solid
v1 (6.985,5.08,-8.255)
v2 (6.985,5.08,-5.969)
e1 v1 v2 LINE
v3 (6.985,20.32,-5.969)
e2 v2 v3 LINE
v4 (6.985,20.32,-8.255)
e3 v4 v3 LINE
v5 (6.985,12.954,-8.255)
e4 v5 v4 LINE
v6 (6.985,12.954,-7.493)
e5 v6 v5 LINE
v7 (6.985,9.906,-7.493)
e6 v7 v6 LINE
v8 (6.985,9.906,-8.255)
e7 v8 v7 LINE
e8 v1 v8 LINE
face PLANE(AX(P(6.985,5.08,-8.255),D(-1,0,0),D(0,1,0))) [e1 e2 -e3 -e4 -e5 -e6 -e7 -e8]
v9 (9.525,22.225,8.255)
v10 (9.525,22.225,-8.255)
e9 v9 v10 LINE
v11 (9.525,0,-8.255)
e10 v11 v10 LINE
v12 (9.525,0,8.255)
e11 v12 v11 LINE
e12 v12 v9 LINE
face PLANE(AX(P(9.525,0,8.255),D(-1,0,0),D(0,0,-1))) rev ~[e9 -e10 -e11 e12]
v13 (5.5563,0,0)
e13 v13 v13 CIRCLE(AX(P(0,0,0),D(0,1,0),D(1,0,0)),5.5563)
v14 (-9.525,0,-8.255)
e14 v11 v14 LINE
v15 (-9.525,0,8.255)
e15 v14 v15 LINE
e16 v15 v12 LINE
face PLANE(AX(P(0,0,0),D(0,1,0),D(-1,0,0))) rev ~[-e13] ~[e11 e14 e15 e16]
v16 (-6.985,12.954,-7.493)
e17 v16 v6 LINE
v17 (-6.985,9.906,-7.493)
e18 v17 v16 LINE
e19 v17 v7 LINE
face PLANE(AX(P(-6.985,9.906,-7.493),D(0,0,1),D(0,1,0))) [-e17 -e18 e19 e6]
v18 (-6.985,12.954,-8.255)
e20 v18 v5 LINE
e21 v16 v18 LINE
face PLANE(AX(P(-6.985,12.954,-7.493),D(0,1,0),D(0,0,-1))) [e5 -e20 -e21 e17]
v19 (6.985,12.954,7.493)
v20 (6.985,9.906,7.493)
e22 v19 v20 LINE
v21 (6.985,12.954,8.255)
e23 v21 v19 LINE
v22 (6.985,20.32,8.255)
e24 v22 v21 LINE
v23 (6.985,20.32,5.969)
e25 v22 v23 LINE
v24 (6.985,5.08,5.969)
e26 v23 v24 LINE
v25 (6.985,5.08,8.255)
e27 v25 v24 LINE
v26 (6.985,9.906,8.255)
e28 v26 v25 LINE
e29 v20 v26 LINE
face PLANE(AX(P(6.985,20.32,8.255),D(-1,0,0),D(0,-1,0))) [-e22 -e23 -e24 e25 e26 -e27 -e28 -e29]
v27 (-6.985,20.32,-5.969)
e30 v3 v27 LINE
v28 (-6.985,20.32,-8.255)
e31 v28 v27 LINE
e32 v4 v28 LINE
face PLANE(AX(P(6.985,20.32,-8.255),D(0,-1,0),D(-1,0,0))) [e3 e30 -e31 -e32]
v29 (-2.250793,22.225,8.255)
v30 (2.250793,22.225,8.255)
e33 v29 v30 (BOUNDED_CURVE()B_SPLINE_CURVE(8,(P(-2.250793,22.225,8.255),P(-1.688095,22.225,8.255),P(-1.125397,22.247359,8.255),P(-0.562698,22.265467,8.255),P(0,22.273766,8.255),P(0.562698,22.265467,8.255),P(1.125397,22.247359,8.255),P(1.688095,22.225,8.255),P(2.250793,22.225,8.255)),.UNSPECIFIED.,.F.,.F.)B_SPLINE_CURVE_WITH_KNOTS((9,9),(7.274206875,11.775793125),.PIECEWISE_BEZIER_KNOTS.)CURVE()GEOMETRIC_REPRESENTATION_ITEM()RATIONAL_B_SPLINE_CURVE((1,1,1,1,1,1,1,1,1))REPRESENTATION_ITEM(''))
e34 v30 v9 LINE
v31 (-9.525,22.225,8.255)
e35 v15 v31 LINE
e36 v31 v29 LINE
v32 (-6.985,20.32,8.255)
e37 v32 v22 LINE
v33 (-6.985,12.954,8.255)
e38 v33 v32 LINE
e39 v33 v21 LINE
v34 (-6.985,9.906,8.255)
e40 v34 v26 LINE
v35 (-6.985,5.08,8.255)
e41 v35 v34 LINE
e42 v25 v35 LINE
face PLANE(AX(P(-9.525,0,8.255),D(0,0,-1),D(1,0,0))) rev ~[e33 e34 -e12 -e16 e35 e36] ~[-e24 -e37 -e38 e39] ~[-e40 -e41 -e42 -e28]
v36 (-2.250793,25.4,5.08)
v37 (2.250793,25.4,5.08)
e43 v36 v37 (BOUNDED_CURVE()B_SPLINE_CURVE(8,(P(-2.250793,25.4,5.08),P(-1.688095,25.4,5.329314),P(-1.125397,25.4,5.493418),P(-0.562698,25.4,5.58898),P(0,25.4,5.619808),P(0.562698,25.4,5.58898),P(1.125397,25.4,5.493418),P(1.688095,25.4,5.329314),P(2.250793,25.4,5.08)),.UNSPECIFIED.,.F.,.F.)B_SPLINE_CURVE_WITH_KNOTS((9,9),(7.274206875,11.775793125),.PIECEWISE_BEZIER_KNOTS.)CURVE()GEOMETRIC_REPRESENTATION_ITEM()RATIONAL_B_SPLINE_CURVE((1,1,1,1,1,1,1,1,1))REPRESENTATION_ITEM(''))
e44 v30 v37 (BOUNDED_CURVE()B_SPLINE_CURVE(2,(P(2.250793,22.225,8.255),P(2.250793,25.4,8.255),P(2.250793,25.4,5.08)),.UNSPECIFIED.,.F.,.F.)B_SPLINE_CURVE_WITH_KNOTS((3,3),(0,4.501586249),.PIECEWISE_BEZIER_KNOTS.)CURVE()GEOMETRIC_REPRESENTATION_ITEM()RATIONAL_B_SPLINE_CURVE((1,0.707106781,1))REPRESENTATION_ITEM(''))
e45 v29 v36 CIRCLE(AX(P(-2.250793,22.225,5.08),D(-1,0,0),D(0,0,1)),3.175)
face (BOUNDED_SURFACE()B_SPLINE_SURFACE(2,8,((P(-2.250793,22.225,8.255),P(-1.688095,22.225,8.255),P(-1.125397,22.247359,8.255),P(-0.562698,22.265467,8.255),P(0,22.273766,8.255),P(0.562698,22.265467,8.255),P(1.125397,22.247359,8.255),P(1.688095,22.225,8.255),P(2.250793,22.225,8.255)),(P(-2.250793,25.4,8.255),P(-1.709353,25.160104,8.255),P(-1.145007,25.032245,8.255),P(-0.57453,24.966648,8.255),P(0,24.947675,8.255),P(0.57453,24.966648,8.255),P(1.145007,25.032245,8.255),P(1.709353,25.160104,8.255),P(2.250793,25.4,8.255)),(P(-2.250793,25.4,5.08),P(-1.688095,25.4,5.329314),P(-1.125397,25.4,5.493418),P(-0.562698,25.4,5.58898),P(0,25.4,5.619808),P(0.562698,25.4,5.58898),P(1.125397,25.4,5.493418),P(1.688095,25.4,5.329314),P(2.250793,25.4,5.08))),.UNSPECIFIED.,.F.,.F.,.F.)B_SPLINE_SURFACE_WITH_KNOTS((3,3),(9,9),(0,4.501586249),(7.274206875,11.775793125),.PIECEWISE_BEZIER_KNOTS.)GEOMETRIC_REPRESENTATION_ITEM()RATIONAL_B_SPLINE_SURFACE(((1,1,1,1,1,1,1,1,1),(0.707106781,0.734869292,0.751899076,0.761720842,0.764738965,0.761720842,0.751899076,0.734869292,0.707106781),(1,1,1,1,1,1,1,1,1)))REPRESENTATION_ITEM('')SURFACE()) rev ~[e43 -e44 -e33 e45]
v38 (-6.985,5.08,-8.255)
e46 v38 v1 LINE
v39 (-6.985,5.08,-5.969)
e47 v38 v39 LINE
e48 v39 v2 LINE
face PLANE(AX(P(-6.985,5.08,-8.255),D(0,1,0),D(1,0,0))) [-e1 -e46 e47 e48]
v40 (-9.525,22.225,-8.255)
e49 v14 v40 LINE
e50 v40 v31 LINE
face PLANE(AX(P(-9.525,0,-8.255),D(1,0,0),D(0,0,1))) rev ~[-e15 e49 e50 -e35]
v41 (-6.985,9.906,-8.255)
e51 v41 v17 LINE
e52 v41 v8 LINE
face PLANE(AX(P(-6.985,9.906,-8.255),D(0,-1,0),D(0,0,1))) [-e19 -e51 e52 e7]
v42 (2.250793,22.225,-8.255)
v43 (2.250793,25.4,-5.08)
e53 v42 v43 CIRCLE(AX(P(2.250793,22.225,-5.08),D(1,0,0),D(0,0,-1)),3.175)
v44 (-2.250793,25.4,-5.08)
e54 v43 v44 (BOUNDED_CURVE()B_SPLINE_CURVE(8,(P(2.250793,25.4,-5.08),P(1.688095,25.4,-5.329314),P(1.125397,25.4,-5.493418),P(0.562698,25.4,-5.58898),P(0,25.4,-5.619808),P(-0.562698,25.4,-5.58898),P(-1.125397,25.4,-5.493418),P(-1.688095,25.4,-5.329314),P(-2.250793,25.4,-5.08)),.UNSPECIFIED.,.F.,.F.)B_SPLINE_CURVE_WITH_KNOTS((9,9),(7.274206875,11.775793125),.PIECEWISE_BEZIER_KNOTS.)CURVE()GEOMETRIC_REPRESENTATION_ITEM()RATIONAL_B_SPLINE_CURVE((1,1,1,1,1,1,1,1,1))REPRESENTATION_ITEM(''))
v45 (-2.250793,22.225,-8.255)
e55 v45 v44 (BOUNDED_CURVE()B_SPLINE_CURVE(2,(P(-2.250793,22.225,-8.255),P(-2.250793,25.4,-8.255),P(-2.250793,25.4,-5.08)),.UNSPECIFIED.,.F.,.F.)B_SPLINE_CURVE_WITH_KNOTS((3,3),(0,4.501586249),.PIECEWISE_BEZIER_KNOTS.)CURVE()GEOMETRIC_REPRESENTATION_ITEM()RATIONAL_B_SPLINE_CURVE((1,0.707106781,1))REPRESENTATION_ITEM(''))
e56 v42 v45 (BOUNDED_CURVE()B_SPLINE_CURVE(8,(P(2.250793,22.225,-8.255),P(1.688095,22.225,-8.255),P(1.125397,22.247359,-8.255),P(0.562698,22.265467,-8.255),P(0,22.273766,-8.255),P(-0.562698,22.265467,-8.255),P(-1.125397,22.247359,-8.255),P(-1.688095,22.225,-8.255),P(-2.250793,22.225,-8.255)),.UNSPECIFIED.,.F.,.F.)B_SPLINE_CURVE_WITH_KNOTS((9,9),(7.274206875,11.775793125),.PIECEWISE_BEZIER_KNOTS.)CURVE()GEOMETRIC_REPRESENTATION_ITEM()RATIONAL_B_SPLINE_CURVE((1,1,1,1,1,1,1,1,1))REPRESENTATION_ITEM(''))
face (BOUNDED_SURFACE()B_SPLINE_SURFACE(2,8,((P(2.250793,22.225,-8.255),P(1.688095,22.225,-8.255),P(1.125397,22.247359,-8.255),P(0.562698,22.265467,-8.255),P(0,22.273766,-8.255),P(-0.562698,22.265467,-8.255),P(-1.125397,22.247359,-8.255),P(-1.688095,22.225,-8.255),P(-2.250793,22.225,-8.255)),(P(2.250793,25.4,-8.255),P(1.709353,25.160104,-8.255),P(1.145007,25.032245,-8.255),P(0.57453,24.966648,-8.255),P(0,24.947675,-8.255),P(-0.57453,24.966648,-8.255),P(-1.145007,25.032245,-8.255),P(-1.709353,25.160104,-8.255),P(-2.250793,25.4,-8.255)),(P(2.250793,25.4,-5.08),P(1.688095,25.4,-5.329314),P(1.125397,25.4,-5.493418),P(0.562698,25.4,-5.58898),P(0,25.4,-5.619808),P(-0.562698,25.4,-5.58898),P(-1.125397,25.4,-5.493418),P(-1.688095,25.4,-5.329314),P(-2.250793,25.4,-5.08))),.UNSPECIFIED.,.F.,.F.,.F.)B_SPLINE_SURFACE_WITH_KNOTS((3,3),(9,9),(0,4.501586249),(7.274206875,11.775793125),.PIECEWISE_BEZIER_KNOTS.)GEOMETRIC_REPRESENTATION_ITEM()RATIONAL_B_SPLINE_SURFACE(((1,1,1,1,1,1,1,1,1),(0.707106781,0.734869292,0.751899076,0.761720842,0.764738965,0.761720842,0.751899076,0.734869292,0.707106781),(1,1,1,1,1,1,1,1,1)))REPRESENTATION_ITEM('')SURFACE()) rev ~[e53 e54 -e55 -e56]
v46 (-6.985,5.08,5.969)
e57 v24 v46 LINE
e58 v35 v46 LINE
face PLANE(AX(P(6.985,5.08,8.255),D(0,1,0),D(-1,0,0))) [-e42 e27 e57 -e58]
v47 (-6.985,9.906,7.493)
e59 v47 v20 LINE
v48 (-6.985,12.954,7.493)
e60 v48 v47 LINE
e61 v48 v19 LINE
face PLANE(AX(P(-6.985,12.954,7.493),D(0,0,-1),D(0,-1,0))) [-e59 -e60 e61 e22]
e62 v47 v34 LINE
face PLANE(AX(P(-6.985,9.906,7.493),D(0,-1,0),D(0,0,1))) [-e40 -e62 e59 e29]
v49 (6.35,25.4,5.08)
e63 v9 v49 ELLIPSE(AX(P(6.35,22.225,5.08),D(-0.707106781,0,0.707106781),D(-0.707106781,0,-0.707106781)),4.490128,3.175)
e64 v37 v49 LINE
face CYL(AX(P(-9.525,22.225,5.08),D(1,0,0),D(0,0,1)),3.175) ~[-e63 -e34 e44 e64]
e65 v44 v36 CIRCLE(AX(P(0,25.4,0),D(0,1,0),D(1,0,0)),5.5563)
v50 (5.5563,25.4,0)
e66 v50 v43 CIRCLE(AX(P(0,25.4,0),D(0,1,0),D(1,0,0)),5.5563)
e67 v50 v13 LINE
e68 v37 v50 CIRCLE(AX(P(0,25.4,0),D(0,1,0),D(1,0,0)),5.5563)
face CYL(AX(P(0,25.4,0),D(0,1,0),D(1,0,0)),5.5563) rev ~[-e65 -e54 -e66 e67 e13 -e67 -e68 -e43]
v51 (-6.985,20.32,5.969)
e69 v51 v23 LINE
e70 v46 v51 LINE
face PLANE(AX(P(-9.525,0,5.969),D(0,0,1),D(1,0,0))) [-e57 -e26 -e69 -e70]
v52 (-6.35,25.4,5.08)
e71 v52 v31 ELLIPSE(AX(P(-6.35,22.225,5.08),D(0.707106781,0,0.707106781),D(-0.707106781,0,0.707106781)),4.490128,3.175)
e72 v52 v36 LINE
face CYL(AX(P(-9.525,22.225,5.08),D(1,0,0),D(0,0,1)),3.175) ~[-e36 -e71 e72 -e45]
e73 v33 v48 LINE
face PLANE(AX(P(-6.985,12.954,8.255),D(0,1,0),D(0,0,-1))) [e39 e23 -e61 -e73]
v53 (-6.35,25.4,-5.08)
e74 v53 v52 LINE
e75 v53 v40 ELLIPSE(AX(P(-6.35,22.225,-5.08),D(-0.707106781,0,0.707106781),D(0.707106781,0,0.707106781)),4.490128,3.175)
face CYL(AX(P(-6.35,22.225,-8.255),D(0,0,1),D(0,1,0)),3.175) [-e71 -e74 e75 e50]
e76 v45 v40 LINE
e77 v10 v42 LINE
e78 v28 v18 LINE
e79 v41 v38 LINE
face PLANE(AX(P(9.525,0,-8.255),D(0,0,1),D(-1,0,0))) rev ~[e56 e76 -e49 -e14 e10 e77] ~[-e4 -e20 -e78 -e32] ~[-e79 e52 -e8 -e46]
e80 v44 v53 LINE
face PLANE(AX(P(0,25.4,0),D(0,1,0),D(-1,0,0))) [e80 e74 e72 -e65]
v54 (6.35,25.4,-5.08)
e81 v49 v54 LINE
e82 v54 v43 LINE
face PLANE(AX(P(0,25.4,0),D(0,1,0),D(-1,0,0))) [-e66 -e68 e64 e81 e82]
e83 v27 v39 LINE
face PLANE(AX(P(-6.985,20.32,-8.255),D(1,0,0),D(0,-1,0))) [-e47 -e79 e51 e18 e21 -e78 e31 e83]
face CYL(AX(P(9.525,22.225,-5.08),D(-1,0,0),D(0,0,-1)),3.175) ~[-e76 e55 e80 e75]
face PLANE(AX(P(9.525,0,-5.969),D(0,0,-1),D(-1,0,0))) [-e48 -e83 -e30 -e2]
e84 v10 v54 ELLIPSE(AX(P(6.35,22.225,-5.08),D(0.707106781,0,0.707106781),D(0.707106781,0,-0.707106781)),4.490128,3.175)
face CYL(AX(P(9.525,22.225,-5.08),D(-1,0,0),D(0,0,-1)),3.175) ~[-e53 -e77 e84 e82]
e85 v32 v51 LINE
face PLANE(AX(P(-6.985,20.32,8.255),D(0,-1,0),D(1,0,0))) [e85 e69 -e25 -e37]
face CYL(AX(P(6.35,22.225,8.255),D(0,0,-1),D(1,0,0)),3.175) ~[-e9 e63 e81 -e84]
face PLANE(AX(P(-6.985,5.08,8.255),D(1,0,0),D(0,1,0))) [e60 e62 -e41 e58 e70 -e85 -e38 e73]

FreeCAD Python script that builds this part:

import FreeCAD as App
import Part
import Sketcher

V = App.Vector
Q = App.Units.Quantity


def edges_at(feature, points):
    """Names of the edges that pass closest to the given points."""
    edges = feature.Shape.Edges
    near = lambda p: min(range(len(edges)), key=lambda i: edges[i].distToShape(Part.Vertex(*p))[0])
    return sorted({f"Edge{near(p) + 1}" for p in points})


def add_polygon(sketch, points):
    """Adds a closed chain of lines whose ends are joined by coincident constraints."""
    first, n = sketch.GeometryCount, len(points)
    for a, b in zip(points, points[1:] + points[:1]):
        sketch.addGeometry(Part.LineSegment(App.Vector(*a, 0), App.Vector(*b, 0)), False)
    for i in range(n):
        sketch.addConstraint(Sketcher.Constraint("Coincident", first + i, 2, first + (i + 1) % n, 1))

doc = App.newDocument("Part")
params = doc.addObject("Spreadsheet::Sheet", "Params")
for row, (alias, value) in enumerate([
    ("sketch1_width", "0.75 in"),
    ("sketch1_height", "0.65 in"),
    ("pad1_length", "1 in"),
    ("sketch2_diameter", "0.4375 in"),
    ("pocket1_length", "2 in"),
    ("sketch3_height", "0.6 in"),
    ("sketch3_width", "0.55 in"),
    ("pocket2_length", "0.09 in"),
    ("sketch4_height", "0.6 in"),
    ("sketch4_width", "0.55 in"),
    ("pocket3_length", "0.09 in"),
    ("sketch5_width", "0.12 in"),
    ("sketch5_height", "0.03 in"),
    ("pad2_length", "0.55 in"),
    ("sketch6_width", "0.12 in"),
    ("sketch6_height", "0.03 in"),
    ("pad3_length", "0.55 in"),
    ("fillet_radius", "0.125 in"),
], start=1):
    params.set(f"A{row}", alias)
    params.set(f"B{row}", "=" + value)
    params.setAlias(f"B{row}", alias)

body = doc.addObject("PartDesign::Body", "Body")

# Sketch on XZ plane
sketch1 = doc.addObject("Sketcher::SketchObject", "Sketch")
body.addObject(sketch1)
sketch1.AttachmentSupport = (doc.XZ_Plane, [""])
sketch1.MapMode = "FlatFace"
add_polygon(sketch1, [(10, 8), (10, -8), (-10, -8), (-10, 8)])  # lines 0-3
sketch1.addConstraint([
    Sketcher.Constraint("Vertical", 0),
    Sketcher.Constraint("Horizontal", 1),
    Sketcher.Constraint("Vertical", 2),
    Sketcher.Constraint("Horizontal", 3),
    Sketcher.Constraint("Symmetric", 0, 2, 2, 2, -1, 1),
    Sketcher.Constraint("DistanceX", 1, 2, 1, 1, Q("0.75 in")),
    Sketcher.Constraint("DistanceY", 0, 2, 0, 1, Q("0.65 in")),
])
sketch1.setExpression("Constraints[9]", "Params.sketch1_width")
sketch1.setExpression("Constraints[10]", "Params.sketch1_height")
pad1 = doc.addObject("PartDesign::Pad", "Pad")
body.addObject(pad1)
pad1.Profile = sketch1
pad1.setExpression("Length", "Params.pad1_length")
pad1.Reversed = True

# Sketch on XZ plane
sketch2 = doc.addObject("Sketcher::SketchObject", "Sketch001")
body.addObject(sketch2)
sketch2.AttachmentSupport = (doc.XZ_Plane, [""])
sketch2.MapMode = "FlatFace"
sketch2.AttachmentOffset = App.Placement(V(0, 0, -1 * 25.4), App.Rotation())
sketch2.addGeometry(Part.Circle(V(0, 0, 0), V(0, 0, 1), 6), False)
sketch2.addConstraint([
    Sketcher.Constraint("Coincident", 0, 3, -1, 1),
    Sketcher.Constraint("Diameter", 0, Q("0.4375 in")),
])
sketch2.setExpression("Constraints[1]", "Params.sketch2_diameter")
pocket1 = doc.addObject("PartDesign::Pocket", "Pocket")
body.addObject(pocket1)
pocket1.Profile = sketch2
pocket1.setExpression("Length", "Params.pocket1_length")
pocket1.Reversed = True

# Sketch on XY plane
sketch3 = doc.addObject("Sketcher::SketchObject", "Sketch002")
body.addObject(sketch3)
sketch3.AttachmentSupport = (doc.XY_Plane, [""])
sketch3.MapMode = "FlatFace"
sketch3.AttachmentOffset = App.Placement(V(0, 0, 0.325 * 25.4), App.Rotation())
add_polygon(sketch3, [(7, 20), (-7, 20), (-7, 5), (7, 5)])  # lines 0-3
sketch3.addConstraint([
    Sketcher.Constraint("Horizontal", 0),
    Sketcher.Constraint("Vertical", 1),
    Sketcher.Constraint("Horizontal", 2),
    Sketcher.Constraint("Vertical", 3),
    Sketcher.Constraint("DistanceY", 1, 2, 1, 1, Q("0.6 in")),
    Sketcher.Constraint("DistanceX", 0, 2, 0, 1, Q("0.55 in")),
    Sketcher.Constraint("DistanceY", -1, 1, 1, 2, Q("0.2 in")),
    Sketcher.Constraint("DistanceX", 0, 2, -1, 1, Q("0.275 in")),
])
sketch3.setExpression("Constraints[8]", "Params.sketch3_height")
sketch3.setExpression("Constraints[9]", "Params.sketch3_width")
pocket2 = doc.addObject("PartDesign::Pocket", "Pocket001")
body.addObject(pocket2)
pocket2.Profile = sketch3
pocket2.setExpression("Length", "Params.pocket2_length")

# Sketch on XY plane
sketch4 = doc.addObject("Sketcher::SketchObject", "Sketch003")
body.addObject(sketch4)
sketch4.AttachmentSupport = (doc.XY_Plane, [""])
sketch4.MapMode = "FlatFace"
sketch4.AttachmentOffset = App.Placement(V(0, 0, -0.325 * 25.4), App.Rotation())
add_polygon(sketch4, [(-7, 20), (7, 20), (7, 5), (-7, 5)])  # lines 0-3
sketch4.addConstraint([
    Sketcher.Constraint("Horizontal", 0),
    Sketcher.Constraint("Vertical", 1),
    Sketcher.Constraint("Horizontal", 2),
    Sketcher.Constraint("Vertical", 3),
    Sketcher.Constraint("DistanceY", 1, 2, 1, 1, Q("0.6 in")),
    Sketcher.Constraint("DistanceX", 0, 1, 0, 2, Q("0.55 in")),
    Sketcher.Constraint("DistanceY", -1, 1, 1, 2, Q("0.2 in")),
    Sketcher.Constraint("DistanceX", -1, 1, 0, 2, Q("0.275 in")),
])
sketch4.setExpression("Constraints[8]", "Params.sketch4_height")
sketch4.setExpression("Constraints[9]", "Params.sketch4_width")
pocket3 = doc.addObject("PartDesign::Pocket", "Pocket002")
body.addObject(pocket3)
pocket3.Profile = sketch4
pocket3.setExpression("Length", "Params.pocket3_length")
pocket3.Reversed = True

# Sketch on YZ plane
sketch5 = doc.addObject("Sketcher::SketchObject", "Sketch004")
body.addObject(sketch5)
sketch5.AttachmentSupport = (doc.YZ_Plane, [""])
sketch5.MapMode = "FlatFace"
sketch5.AttachmentOffset = App.Placement(V(0, 0, -0.275 * 25.4), App.Rotation())
add_polygon(sketch5, [(13, -8.3), (13, -7.5), (9.9, -7.5), (9.9, -8.3)])  # lines 0-3
sketch5.addConstraint([
    Sketcher.Constraint("Vertical", 0),
    Sketcher.Constraint("Horizontal", 1),
    Sketcher.Constraint("Vertical", 2),
    Sketcher.Constraint("Horizontal", 3),
    Sketcher.Constraint("DistanceX", 1, 2, 1, 1, Q("0.12 in")),
    Sketcher.Constraint("DistanceY", 0, 1, 0, 2, Q("0.03 in")),
    Sketcher.Constraint("DistanceX", -1, 1, 0, 2, Q("0.51 in")),
    Sketcher.Constraint("DistanceY", 0, 2, -1, 1, Q("0.295 in")),
])
sketch5.setExpression("Constraints[8]", "Params.sketch5_width")
sketch5.setExpression("Constraints[9]", "Params.sketch5_height")
pad2 = doc.addObject("PartDesign::Pad", "Pad001")
body.addObject(pad2)
pad2.Profile = sketch5
pad2.setExpression("Length", "Params.pad2_length")

# Sketch on YZ plane
sketch6 = doc.addObject("Sketcher::SketchObject", "Sketch005")
body.addObject(sketch6)
sketch6.AttachmentSupport = (doc.YZ_Plane, [""])
sketch6.MapMode = "FlatFace"
sketch6.AttachmentOffset = App.Placement(V(0, 0, -0.275 * 25.4), App.Rotation())
add_polygon(sketch6, [(13, 7.5), (13, 8.3), (9.9, 8.3), (9.9, 7.5)])  # lines 0-3
sketch6.addConstraint([
    Sketcher.Constraint("Vertical", 0),
    Sketcher.Constraint("Horizontal", 1),
    Sketcher.Constraint("Vertical", 2),
    Sketcher.Constraint("Horizontal", 3),
    Sketcher.Constraint("DistanceX", 1, 2, 1, 1, Q("0.12 in")),
    Sketcher.Constraint("DistanceY", 0, 1, 0, 2, Q("0.03 in")),
    Sketcher.Constraint("DistanceX", -1, 1, 0, 2, Q("0.51 in")),
    Sketcher.Constraint("DistanceY", -1, 1, 0, 2, Q("0.325 in")),
])
sketch6.setExpression("Constraints[8]", "Params.sketch6_width")
sketch6.setExpression("Constraints[9]", "Params.sketch6_height")
pad3 = doc.addObject("PartDesign::Pad", "Pad002")
body.addObject(pad3)
pad3.Profile = sketch6
pad3.setExpression("Length", "Params.pad3_length")
doc.recompute()

fillet = doc.addObject("PartDesign::Fillet", "Fillet")
body.addObject(fillet)
fillet.Base = (pad3, edges_at(pad3, [
    (-9.525, 25.4, 0),
    (9.525, 25.4, 0),
    (0, 25.4, 8.255),
    (0, 25.4, -8.255),
]))
fillet.setExpression("Radius", "Params.fillet_radius")

doc.recompute()
